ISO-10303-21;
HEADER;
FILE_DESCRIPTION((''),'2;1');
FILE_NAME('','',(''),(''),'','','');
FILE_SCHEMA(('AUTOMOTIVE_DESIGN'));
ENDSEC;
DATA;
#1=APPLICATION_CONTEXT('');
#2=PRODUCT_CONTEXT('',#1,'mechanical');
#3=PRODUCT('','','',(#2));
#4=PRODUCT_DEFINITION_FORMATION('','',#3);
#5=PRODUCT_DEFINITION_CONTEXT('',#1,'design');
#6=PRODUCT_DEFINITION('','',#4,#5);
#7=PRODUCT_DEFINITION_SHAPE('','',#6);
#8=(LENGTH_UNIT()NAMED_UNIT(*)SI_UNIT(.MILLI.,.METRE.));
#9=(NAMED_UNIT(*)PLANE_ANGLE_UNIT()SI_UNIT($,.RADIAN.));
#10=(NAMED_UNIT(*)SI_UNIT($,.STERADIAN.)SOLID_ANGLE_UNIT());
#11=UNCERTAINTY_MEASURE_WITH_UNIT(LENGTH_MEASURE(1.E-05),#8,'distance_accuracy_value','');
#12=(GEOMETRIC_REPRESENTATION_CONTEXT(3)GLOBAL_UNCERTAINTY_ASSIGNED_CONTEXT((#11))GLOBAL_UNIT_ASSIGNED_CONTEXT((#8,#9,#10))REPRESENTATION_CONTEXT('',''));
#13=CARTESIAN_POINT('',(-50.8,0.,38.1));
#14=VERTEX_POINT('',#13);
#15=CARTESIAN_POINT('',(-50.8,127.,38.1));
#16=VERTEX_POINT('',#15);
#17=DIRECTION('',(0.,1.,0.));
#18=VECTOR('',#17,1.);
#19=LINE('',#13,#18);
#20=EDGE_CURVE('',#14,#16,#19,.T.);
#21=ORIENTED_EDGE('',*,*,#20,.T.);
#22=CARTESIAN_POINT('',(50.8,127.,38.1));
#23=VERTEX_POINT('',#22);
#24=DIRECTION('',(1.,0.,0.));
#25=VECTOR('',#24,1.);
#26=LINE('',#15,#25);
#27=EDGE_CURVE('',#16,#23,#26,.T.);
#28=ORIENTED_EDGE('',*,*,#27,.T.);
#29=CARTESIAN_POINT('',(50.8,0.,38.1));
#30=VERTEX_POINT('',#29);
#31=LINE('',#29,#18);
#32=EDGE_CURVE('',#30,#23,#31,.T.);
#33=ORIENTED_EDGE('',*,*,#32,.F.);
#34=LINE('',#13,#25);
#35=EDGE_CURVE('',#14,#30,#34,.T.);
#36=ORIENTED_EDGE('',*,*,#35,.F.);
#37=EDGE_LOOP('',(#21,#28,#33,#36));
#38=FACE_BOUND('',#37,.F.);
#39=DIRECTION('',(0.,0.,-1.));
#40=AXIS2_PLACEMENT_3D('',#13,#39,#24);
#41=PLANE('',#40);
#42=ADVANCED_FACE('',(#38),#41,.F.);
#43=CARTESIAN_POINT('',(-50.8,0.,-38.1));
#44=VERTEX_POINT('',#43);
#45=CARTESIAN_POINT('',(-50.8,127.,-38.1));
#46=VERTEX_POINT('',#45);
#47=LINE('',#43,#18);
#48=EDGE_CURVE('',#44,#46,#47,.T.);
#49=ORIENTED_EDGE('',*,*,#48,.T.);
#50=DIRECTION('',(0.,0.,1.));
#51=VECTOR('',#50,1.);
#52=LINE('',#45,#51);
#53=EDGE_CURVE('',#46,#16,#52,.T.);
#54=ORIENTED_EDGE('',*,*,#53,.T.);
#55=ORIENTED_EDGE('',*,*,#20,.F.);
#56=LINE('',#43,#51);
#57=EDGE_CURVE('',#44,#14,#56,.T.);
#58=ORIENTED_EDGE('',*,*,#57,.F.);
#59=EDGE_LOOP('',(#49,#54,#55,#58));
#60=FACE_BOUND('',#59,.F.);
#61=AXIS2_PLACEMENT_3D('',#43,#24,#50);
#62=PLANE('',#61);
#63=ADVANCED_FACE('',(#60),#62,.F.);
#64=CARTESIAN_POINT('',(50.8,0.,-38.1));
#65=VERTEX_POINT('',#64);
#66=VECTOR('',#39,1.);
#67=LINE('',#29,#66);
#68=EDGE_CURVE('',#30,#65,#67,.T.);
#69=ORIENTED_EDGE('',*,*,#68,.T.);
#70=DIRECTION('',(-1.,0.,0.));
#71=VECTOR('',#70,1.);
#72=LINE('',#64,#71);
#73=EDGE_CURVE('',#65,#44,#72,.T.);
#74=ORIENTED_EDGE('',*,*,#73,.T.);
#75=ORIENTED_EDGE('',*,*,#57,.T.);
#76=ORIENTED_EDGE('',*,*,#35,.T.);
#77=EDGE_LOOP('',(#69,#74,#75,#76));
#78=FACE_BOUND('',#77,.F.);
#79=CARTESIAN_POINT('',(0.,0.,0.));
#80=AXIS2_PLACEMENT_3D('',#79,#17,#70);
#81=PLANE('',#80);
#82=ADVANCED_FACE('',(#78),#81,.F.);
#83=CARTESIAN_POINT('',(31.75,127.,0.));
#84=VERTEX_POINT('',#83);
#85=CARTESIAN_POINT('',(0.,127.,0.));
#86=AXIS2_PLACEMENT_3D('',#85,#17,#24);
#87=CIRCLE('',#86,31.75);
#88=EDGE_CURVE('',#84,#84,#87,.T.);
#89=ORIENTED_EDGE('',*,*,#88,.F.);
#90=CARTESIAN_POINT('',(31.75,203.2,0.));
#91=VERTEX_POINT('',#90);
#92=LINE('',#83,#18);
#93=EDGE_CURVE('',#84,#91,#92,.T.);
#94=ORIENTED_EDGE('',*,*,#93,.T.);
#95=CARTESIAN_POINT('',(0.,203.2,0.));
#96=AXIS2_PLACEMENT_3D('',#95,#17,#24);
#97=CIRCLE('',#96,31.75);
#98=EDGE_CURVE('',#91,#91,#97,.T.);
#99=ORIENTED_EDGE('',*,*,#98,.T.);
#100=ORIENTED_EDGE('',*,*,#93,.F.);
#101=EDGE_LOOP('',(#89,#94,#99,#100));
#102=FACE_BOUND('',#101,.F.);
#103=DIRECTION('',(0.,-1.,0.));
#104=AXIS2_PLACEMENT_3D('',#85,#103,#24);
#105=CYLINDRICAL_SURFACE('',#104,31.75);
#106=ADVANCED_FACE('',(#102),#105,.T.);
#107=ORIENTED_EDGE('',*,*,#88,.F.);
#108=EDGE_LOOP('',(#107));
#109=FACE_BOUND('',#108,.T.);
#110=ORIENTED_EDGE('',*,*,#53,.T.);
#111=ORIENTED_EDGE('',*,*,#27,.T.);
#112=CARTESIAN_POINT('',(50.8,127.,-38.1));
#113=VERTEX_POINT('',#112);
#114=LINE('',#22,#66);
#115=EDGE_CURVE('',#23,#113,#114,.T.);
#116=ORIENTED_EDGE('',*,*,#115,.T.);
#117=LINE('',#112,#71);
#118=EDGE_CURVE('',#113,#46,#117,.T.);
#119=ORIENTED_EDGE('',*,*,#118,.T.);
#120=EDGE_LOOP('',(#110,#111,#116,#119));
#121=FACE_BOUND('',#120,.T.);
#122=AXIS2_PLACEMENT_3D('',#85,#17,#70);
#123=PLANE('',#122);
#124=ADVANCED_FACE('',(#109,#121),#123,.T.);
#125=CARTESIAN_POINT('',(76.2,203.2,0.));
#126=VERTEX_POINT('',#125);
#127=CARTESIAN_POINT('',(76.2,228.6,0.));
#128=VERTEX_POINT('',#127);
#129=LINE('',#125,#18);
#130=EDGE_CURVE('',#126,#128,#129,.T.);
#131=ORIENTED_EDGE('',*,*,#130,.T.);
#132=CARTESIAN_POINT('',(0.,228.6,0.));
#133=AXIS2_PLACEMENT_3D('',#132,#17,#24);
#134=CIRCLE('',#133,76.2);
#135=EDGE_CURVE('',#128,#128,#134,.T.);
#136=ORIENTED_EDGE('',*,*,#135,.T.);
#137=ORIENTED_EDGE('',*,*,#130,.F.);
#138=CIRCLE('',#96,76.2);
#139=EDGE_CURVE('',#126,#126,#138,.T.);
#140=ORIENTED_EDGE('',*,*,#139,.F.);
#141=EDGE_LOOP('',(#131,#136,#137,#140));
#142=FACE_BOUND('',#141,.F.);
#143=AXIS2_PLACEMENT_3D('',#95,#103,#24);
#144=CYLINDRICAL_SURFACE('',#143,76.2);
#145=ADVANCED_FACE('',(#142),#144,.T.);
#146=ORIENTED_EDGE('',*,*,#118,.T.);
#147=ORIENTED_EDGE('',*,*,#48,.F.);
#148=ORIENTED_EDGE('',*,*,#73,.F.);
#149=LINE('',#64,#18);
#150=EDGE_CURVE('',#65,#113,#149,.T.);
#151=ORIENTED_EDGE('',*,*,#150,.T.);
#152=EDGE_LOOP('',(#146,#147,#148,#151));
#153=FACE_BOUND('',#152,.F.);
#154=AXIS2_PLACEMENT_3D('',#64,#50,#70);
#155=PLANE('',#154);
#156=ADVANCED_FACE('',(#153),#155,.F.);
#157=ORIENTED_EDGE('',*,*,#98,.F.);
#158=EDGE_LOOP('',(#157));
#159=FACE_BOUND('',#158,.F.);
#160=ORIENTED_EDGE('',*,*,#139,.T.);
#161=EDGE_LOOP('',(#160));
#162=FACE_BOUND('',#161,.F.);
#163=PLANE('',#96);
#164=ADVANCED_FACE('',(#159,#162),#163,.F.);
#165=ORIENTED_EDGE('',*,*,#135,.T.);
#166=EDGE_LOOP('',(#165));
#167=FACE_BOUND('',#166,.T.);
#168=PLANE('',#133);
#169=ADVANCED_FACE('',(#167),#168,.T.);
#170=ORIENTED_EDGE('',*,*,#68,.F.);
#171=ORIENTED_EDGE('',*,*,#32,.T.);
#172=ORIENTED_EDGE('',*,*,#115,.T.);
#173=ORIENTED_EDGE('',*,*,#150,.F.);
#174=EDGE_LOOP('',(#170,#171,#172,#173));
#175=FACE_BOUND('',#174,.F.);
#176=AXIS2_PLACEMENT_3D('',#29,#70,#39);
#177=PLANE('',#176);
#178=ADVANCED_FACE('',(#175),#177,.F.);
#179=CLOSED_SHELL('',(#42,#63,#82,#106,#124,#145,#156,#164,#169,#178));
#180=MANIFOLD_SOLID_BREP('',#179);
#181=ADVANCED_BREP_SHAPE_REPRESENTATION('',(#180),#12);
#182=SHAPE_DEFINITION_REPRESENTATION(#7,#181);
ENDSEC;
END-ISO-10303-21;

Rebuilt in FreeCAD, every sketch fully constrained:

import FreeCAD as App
import Part
import Sketcher
Q = App.Units.Quantity

doc = App.newDocument("Part")
body = doc.addObject("PartDesign::Body", "Body")

sketch1 = body.newObject("Sketcher::SketchObject", "Sketch")
sketch1.AttachmentSupport = (doc.getObject("XZ_Plane"), [""])
sketch1.MapMode = "FlatFace"
sketch1.addGeometry([
    Part.LineSegment(App.Vector(51, 38, 0), App.Vector(51, -38, 0)),
    Part.LineSegment(App.Vector(51, -38, 0), App.Vector(-51, -38, 0)),
    Part.LineSegment(App.Vector(-51, -38, 0), App.Vector(-51, 38, 0)),
    Part.LineSegment(App.Vector(-51, 38, 0), App.Vector(51, 38, 0)),
], False)
sketch1.addConstraint([
    Sketcher.Constraint("Coincident", 0, 2, 1, 1),
    Sketcher.Constraint("Coincident", 1, 2, 2, 1),
    Sketcher.Constraint("Coincident", 2, 2, 3, 1),
    Sketcher.Constraint("Coincident", 3, 2, 0, 1),
    Sketcher.Constraint("Vertical", 0),
    Sketcher.Constraint("Horizontal", 1),
    Sketcher.Constraint("Vertical", 2),
    Sketcher.Constraint("Horizontal", 3),
    Sketcher.Constraint("Symmetric", 0, 2, 2, 2, -1, 1),
    Sketcher.Constraint("DistanceX", 1, 2, 1, 1, Q("4 in")),
    Sketcher.Constraint("DistanceY", 0, 2, 0, 1, Q("3 in")),
])
pad1 = body.newObject("PartDesign::Pad", "Pad")
pad1.Profile = sketch1
pad1.Length = Q("5 in")
pad1.Reversed = True

sketch2 = body.newObject("Sketcher::SketchObject", "Sketch001")
sketch2.AttachmentSupport = (doc.getObject("XZ_Plane"), [""])
sketch2.MapMode = "FlatFace"
sketch2.AttachmentOffset = App.Placement(App.Vector(0, 0, -5 * 25.4), App.Rotation())
sketch2.addGeometry(Part.Circle(App.Vector(0, 0, 0), App.Vector(0, 0, 1), 32), False)
sketch2.addConstraint([
    Sketcher.Constraint("Coincident", 0, 3, -1, 1),
    Sketcher.Constraint("Diameter", 0, Q("2.5 in")),
])
pad2 = body.newObject("PartDesign::Pad", "Pad001")
pad2.Profile = sketch2
pad2.Length = Q("3 in")
pad2.Reversed = True

sketch3 = body.newObject("Sketcher::SketchObject", "Sketch002")
sketch3.AttachmentSupport = (doc.getObject("XZ_Plane"), [""])
sketch3.MapMode = "FlatFace"
sketch3.AttachmentOffset = App.Placement(App.Vector(0, 0, -8 * 25.4), App.Rotation())
sketch3.addGeometry(Part.Circle(App.Vector(0, 0, 0), App.Vector(0, 0, 1), 76), False)
sketch3.addConstraint([
    Sketcher.Constraint("Coincident", 0, 3, -1, 1),
    Sketcher.Constraint("Diameter", 0, Q("6 in")),
])
pad3 = body.newObject("PartDesign::Pad", "Pad002")
pad3.Profile = sketch3
pad3.Length = Q("1 in")
pad3.Reversed = True

doc.recompute()
